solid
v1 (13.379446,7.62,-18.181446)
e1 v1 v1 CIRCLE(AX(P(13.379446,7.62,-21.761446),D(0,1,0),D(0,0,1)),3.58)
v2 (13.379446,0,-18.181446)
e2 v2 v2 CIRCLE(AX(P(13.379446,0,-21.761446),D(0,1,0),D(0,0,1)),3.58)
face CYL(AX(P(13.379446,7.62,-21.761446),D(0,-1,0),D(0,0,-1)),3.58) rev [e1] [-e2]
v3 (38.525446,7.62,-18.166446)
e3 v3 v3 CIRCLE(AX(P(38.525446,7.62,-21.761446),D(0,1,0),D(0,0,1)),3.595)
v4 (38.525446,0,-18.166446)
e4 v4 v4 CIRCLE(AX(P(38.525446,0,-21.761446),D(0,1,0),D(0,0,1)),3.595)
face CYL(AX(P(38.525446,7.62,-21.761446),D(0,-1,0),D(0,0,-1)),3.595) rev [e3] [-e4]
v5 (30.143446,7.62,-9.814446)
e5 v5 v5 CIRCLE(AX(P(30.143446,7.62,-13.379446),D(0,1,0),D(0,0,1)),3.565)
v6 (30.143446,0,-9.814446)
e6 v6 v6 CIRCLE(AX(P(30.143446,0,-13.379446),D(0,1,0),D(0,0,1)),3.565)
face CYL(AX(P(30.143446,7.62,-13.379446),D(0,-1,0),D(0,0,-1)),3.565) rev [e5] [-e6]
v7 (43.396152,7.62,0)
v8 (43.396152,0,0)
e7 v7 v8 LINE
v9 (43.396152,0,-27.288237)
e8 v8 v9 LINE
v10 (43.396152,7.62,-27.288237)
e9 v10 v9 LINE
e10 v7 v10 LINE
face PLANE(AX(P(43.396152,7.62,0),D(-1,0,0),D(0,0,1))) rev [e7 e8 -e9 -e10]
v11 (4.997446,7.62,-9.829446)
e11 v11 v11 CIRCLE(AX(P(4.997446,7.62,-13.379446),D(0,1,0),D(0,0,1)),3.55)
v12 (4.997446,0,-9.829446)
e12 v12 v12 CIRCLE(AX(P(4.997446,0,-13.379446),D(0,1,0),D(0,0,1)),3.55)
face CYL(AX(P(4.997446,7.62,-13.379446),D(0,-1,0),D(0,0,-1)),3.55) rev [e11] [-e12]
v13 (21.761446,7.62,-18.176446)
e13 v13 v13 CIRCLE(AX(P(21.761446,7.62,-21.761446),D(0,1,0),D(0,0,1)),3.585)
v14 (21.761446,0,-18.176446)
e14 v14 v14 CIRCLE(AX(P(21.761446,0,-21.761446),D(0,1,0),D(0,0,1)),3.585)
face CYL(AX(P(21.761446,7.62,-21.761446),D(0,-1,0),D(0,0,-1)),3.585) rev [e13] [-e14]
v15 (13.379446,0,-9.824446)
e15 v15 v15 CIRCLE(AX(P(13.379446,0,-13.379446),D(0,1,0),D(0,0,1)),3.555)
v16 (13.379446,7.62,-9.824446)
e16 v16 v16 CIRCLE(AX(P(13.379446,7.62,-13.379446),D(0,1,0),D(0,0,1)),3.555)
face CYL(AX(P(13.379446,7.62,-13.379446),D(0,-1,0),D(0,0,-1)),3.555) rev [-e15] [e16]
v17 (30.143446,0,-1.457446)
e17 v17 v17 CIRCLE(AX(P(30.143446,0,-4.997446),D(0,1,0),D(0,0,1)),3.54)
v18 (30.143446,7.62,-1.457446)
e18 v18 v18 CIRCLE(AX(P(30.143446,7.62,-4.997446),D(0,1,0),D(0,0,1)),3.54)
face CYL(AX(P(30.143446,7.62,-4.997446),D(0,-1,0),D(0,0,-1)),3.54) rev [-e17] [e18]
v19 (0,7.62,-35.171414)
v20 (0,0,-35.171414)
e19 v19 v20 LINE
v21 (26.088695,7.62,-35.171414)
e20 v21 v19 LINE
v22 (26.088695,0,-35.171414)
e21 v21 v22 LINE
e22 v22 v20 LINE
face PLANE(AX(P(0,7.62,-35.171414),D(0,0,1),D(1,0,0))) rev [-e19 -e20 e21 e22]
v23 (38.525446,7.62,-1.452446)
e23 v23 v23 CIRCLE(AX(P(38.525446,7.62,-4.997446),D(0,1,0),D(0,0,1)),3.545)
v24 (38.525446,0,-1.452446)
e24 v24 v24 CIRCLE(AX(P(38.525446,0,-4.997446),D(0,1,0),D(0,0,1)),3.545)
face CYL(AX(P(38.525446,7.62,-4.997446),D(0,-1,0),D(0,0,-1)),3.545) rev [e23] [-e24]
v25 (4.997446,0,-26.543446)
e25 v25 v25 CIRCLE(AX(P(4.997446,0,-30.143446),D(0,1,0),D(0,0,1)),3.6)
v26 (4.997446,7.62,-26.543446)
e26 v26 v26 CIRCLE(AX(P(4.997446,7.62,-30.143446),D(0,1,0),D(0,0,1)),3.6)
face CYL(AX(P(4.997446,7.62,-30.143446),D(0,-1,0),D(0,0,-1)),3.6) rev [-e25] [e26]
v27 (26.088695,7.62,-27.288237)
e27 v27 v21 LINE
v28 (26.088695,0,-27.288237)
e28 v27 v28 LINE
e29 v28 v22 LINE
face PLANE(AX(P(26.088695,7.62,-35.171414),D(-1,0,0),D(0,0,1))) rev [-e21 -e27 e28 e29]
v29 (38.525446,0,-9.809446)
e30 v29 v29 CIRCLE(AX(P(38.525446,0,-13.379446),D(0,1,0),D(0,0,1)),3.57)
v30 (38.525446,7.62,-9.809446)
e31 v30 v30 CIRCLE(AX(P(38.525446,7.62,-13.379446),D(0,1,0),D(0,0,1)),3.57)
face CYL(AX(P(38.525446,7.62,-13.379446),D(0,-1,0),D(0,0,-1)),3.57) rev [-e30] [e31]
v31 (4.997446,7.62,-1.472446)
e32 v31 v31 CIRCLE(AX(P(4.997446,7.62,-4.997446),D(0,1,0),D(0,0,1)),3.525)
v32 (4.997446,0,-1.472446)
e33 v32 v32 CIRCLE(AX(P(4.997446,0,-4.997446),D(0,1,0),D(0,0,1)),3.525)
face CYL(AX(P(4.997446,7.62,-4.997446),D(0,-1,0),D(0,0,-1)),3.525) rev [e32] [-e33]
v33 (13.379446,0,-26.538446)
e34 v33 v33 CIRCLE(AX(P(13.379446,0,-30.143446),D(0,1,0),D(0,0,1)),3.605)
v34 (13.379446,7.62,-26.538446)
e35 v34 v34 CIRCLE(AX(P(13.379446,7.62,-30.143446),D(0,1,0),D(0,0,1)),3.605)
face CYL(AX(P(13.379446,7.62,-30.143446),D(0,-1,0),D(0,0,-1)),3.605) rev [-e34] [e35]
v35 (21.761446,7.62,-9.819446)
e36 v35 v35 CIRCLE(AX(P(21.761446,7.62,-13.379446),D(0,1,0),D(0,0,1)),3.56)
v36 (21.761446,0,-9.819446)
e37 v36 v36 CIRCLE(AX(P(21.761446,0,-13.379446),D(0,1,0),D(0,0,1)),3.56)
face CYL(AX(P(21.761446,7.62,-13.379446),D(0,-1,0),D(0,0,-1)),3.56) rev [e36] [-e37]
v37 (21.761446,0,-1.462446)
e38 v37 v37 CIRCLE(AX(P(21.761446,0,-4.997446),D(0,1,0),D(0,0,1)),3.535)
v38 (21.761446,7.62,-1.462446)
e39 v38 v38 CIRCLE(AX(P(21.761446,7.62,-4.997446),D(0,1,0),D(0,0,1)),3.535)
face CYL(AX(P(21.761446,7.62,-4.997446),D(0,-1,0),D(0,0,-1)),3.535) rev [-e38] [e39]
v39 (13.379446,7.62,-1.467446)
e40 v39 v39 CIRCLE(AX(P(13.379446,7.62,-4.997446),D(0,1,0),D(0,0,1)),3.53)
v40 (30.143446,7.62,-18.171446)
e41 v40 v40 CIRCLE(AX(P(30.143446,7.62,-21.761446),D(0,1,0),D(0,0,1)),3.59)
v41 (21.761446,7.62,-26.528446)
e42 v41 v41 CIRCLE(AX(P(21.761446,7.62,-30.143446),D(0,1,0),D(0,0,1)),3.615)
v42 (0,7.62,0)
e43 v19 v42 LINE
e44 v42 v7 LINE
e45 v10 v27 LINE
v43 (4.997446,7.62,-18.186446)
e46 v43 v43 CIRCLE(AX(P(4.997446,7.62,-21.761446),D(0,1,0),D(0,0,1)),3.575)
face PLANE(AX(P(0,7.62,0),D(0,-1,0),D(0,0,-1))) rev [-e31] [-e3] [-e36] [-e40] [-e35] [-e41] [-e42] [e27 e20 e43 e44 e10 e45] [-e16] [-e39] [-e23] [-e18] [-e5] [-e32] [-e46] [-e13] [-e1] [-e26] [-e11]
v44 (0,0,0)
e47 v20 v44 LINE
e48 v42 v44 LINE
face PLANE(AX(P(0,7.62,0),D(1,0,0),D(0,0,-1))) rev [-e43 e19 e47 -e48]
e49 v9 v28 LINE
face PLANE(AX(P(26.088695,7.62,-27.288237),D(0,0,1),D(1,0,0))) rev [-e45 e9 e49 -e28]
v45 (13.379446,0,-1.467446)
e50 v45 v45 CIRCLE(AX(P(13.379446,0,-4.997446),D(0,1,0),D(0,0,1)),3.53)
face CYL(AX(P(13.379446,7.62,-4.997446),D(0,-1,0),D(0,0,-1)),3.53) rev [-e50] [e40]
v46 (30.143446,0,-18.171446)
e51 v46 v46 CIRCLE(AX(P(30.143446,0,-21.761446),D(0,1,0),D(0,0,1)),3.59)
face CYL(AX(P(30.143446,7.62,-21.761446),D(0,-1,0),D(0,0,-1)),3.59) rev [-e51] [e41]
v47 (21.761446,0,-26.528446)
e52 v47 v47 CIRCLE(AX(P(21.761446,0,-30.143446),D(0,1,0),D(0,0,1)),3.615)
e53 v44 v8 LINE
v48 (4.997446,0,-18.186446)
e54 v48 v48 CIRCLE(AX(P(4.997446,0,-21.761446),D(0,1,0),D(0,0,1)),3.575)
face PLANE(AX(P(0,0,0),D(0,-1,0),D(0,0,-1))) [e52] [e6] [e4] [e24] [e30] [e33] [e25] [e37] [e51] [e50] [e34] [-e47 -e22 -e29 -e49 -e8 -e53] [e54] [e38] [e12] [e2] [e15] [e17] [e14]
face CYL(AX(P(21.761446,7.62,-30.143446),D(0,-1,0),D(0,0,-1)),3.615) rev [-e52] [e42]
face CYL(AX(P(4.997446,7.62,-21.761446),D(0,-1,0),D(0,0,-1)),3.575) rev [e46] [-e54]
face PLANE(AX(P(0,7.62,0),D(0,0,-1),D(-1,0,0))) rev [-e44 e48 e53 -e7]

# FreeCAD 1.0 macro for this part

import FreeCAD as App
import Part
import Sketcher

doc = App.newDocument("Part")
body = doc.addObject("PartDesign::Body", "Body")

# Sketch on XZ plane
sketch1 = body.newObject("Sketcher::SketchObject", "Sketch")
sketch1.AttachmentSupport = (doc.getObject("XZ_Plane"), [""])
sketch1.MapMode = "FlatFace"
sketch1.addGeometry(Part.LineSegment(App.Vector(0, 0, 0), App.Vector(43.396152, 0, 0)), False)
sketch1.addGeometry(Part.LineSegment(App.Vector(43.396152, 0, 0), App.Vector(43.396152, -27.288237, 0)), False)
sketch1.addGeometry(Part.LineSegment(App.Vector(43.396152, -27.288237, 0), App.Vector(26.088695, -27.288237, 0)), False)
sketch1.addGeometry(Part.LineSegment(App.Vector(26.088695, -27.288237, 0), App.Vector(26.088695, -35.171414, 0)), False)
sketch1.addGeometry(Part.LineSegment(App.Vector(26.088695, -35.171414, 0), App.Vector(0, -35.171414, 0)), False)
sketch1.addGeometry(Part.LineSegment(App.Vector(0, -35.171414, 0), App.Vector(0, 0, 0)), False)
sketch1.addGeometry(Part.Circle(App.Vector(4.997446, -4.997446, 0), App.Vector(0, 0, 1), 3.525), False)
sketch1.addGeometry(Part.Circle(App.Vector(13.379446, -4.997446, 0), App.Vector(0, 0, 1), 3.53), False)
sketch1.addGeometry(Part.Circle(App.Vector(4.997446, -13.379446, 0), App.Vector(0, 0, 1), 3.55), False)
sketch1.addGeometry(Part.Circle(App.Vector(13.379446, -13.379446, 0), App.Vector(0, 0, 1), 3.555), False)
sketch1.addGeometry(Part.Circle(App.Vector(21.761446, -4.997446, 0), App.Vector(0, 0, 1), 3.535), False)
sketch1.addGeometry(Part.Circle(App.Vector(30.143446, -4.997446, 0), App.Vector(0, 0, 1), 3.54), False)
sketch1.addGeometry(Part.Circle(App.Vector(38.525446, -4.997446, 0), App.Vector(0, 0, 1), 3.545), False)
sketch1.addGeometry(Part.Circle(App.Vector(21.761446, -13.379446, 0), App.Vector(0, 0, 1), 3.56), False)
sketch1.addGeometry(Part.Circle(App.Vector(30.143446, -13.379446, 0), App.Vector(0, 0, 1), 3.565), False)
sketch1.addGeometry(Part.Circle(App.Vector(38.525446, -13.379446, 0), App.Vector(0, 0, 1), 3.57), False)
sketch1.addGeometry(Part.Circle(App.Vector(4.997446, -21.761446, 0), App.Vector(0, 0, 1), 3.575), False)
sketch1.addGeometry(Part.Circle(App.Vector(13.379446, -21.761446, 0), App.Vector(0, 0, 1), 3.58), False)
sketch1.addGeometry(Part.Circle(App.Vector(4.997446, -30.143446, 0), App.Vector(0, 0, 1), 3.6), False)
sketch1.addGeometry(Part.Circle(App.Vector(13.379446, -30.143446, 0), App.Vector(0, 0, 1), 3.605), False)
sketch1.addGeometry(Part.Circle(App.Vector(21.761446, -21.761446, 0), App.Vector(0, 0, 1), 3.585), False)
sketch1.addGeometry(Part.Circle(App.Vector(30.143446, -21.761446, 0), App.Vector(0, 0, 1), 3.59), False)
sketch1.addGeometry(Part.Circle(App.Vector(38.525446, -21.761446, 0), App.Vector(0, 0, 1), 3.595), False)
sketch1.addGeometry(Part.Circle(App.Vector(21.761446, -30.143446, 0), App.Vector(0, 0, 1), 3.615), False)
sketch1.addConstraint(Sketcher.Constraint("Coincident", 0, 2, 1, 1))
sketch1.addConstraint(Sketcher.Constraint("Coincident", 1, 2, 2, 1))
sketch1.addConstraint(Sketcher.Constraint("Coincident", 2, 2, 3, 1))
sketch1.addConstraint(Sketcher.Constraint("Coincident", 3, 2, 4, 1))
sketch1.addConstraint(Sketcher.Constraint("Coincident", 4, 2, 5, 1))
sketch1.addConstraint(Sketcher.Constraint("Coincident", 5, 2, 0, 1))
sketch1.addConstraint(Sketcher.Constraint("Horizontal", 0))
sketch1.addConstraint(Sketcher.Constraint("Vertical", 1))
sketch1.addConstraint(Sketcher.Constraint("Horizontal", 2))
sketch1.addConstraint(Sketcher.Constraint("Vertical", 3))
sketch1.addConstraint(Sketcher.Constraint("Horizontal", 4))
sketch1.addConstraint(Sketcher.Constraint("Vertical", 5))
sketch1.addConstraint(Sketcher.Constraint("Coincident", 5, 2, -1, 1))
sketch1.addConstraint(Sketcher.Constraint("Horizontal", 6, 3, 7, 3))
sketch1.addConstraint(Sketcher.Constraint("Horizontal", 8, 3, 9, 3))
sketch1.addConstraint(Sketcher.Constraint("Horizontal", 7, 3, 10, 3))
sketch1.addConstraint(Sketcher.Constraint("Horizontal", 10, 3, 11, 3))
sketch1.addConstraint(Sketcher.Constraint("Horizontal", 11, 3, 12, 3))
sketch1.addConstraint(Sketcher.Constraint("Horizontal", 9, 3, 13, 3))
sketch1.addConstraint(Sketcher.Constraint("Horizontal", 13, 3, 14, 3))
sketch1.addConstraint(Sketcher.Constraint("Horizontal", 14, 3, 15, 3))
sketch1.addConstraint(Sketcher.Constraint("Horizontal", 16, 3, 17, 3))
sketch1.addConstraint(Sketcher.Constraint("Horizontal", 18, 3, 19, 3))
sketch1.addConstraint(Sketcher.Constraint("Horizontal", 17, 3, 20, 3))
sketch1.addConstraint(Sketcher.Constraint("Horizontal", 20, 3, 21, 3))
sketch1.addConstraint(Sketcher.Constraint("Horizontal", 21, 3, 22, 3))
sketch1.addConstraint(Sketcher.Constraint("Horizontal", 19, 3, 23, 3))
sketch1.addConstraint(Sketcher.Constraint("Vertical", 6, 3, 8, 3))
sketch1.addConstraint(Sketcher.Constraint("Vertical", 7, 3, 9, 3))
sketch1.addConstraint(Sketcher.Constraint("Vertical", 10, 3, 13, 3))
sketch1.addConstraint(Sketcher.Constraint("Vertical", 11, 3, 14, 3))
sketch1.addConstraint(Sketcher.Constraint("Vertical", 12, 3, 15, 3))
sketch1.addConstraint(Sketcher.Constraint("Vertical", 8, 3, 16, 3))
sketch1.addConstraint(Sketcher.Constraint("Vertical", 9, 3, 17, 3))
sketch1.addConstraint(Sketcher.Constraint("Vertical", 16, 3, 18, 3))
sketch1.addConstraint(Sketcher.Constraint("Vertical", 17, 3, 19, 3))
sketch1.addConstraint(Sketcher.Constraint("Vertical", 13, 3, 20, 3))
sketch1.addConstraint(Sketcher.Constraint("Vertical", 14, 3, 21, 3))
sketch1.addConstraint(Sketcher.Constraint("Vertical", 15, 3, 22, 3))
sketch1.addConstraint(Sketcher.Constraint("Vertical", 20, 3, 23, 3))
sketch1.addConstraint(Sketcher.Constraint("Diameter", 8, 7.1))
sketch1.addConstraint(Sketcher.Constraint("Diameter", 18, 7.2))
sketch1.addConstraint(Sketcher.Constraint("Diameter", 6, 7.05))
sketch1.addConstraint(Sketcher.Constraint("Diameter", 7, 7.06))
sketch1.addConstraint(Sketcher.Constraint("Diameter", 9, 7.11))
sketch1.addConstraint(Sketcher.Constraint("Diameter", 10, 7.07))
sketch1.addConstraint(Sketcher.Constraint("Diameter", 11, 7.08))
sketch1.addConstraint(Sketcher.Constraint("Diameter", 12, 7.09))
sketch1.addConstraint(Sketcher.Constraint("Diameter", 13, 7.12))
sketch1.addConstraint(Sketcher.Constraint("Diameter", 14, 7.13))
sketch1.addConstraint(Sketcher.Constraint("Diameter", 15, 7.14))
sketch1.addConstraint(Sketcher.Constraint("Diameter", 16, 7.15))
sketch1.addConstraint(Sketcher.Constraint("Diameter", 17, 7.16))
sketch1.addConstraint(Sketcher.Constraint("Diameter", 19, 7.21))
sketch1.addConstraint(Sketcher.Constraint("Diameter", 20, 7.17))
sketch1.addConstraint(Sketcher.Constraint("Diameter", 21, 7.18))
sketch1.addConstraint(Sketcher.Constraint("Diameter", 22, 7.19))
sketch1.addConstraint(Sketcher.Constraint("Diameter", 23, 7.23))
sketch1.addConstraint(Sketcher.Constraint("DistanceX", 6, 3, 7, 3, 8.382))
sketch1.addConstraint(Sketcher.Constraint("DistanceY", 8, 3, 6, 3, 8.382))
sketch1.addConstraint(Sketcher.Constraint("DistanceX", 7, 3, 10, 3, 8.382))
sketch1.addConstraint(Sketcher.Constraint("DistanceX", 10, 3, 11, 3, 8.382))
sketch1.addConstraint(Sketcher.Constraint("DistanceX", 11, 3, 12, 3, 8.382))
sketch1.addConstraint(Sketcher.Constraint("DistanceY", 16, 3, 8, 3, 8.382))
sketch1.addConstraint(Sketcher.Constraint("DistanceY", 18, 3, 16, 3, 8.382))
sketch1.addConstraint(Sketcher.Constraint("DistanceX", 0, 1, 0, 2, 43.396152))
sketch1.addConstraint(Sketcher.Constraint("DistanceX", 2, 2, 2, 1, 17.307457))
sketch1.addConstraint(Sketcher.Constraint("DistanceY", 1, 2, 1, 1, 27.288237))
sketch1.addConstraint(Sketcher.Constraint("DistanceY", 3, 2, 3, 1, 7.883176))
sketch1.addConstraint(Sketcher.Constraint("DistanceY", 1, 2, 22, 3, 5.526792))
sketch1.addConstraint(Sketcher.Constraint("DistanceX", 23, 3, 2, 2, 4.327249))
pad1 = body.newObject("PartDesign::Pad", "Pad")
pad1.Profile = sketch1
pad1.Length = 7.62
pad1.Reversed = True

doc.recompute()
